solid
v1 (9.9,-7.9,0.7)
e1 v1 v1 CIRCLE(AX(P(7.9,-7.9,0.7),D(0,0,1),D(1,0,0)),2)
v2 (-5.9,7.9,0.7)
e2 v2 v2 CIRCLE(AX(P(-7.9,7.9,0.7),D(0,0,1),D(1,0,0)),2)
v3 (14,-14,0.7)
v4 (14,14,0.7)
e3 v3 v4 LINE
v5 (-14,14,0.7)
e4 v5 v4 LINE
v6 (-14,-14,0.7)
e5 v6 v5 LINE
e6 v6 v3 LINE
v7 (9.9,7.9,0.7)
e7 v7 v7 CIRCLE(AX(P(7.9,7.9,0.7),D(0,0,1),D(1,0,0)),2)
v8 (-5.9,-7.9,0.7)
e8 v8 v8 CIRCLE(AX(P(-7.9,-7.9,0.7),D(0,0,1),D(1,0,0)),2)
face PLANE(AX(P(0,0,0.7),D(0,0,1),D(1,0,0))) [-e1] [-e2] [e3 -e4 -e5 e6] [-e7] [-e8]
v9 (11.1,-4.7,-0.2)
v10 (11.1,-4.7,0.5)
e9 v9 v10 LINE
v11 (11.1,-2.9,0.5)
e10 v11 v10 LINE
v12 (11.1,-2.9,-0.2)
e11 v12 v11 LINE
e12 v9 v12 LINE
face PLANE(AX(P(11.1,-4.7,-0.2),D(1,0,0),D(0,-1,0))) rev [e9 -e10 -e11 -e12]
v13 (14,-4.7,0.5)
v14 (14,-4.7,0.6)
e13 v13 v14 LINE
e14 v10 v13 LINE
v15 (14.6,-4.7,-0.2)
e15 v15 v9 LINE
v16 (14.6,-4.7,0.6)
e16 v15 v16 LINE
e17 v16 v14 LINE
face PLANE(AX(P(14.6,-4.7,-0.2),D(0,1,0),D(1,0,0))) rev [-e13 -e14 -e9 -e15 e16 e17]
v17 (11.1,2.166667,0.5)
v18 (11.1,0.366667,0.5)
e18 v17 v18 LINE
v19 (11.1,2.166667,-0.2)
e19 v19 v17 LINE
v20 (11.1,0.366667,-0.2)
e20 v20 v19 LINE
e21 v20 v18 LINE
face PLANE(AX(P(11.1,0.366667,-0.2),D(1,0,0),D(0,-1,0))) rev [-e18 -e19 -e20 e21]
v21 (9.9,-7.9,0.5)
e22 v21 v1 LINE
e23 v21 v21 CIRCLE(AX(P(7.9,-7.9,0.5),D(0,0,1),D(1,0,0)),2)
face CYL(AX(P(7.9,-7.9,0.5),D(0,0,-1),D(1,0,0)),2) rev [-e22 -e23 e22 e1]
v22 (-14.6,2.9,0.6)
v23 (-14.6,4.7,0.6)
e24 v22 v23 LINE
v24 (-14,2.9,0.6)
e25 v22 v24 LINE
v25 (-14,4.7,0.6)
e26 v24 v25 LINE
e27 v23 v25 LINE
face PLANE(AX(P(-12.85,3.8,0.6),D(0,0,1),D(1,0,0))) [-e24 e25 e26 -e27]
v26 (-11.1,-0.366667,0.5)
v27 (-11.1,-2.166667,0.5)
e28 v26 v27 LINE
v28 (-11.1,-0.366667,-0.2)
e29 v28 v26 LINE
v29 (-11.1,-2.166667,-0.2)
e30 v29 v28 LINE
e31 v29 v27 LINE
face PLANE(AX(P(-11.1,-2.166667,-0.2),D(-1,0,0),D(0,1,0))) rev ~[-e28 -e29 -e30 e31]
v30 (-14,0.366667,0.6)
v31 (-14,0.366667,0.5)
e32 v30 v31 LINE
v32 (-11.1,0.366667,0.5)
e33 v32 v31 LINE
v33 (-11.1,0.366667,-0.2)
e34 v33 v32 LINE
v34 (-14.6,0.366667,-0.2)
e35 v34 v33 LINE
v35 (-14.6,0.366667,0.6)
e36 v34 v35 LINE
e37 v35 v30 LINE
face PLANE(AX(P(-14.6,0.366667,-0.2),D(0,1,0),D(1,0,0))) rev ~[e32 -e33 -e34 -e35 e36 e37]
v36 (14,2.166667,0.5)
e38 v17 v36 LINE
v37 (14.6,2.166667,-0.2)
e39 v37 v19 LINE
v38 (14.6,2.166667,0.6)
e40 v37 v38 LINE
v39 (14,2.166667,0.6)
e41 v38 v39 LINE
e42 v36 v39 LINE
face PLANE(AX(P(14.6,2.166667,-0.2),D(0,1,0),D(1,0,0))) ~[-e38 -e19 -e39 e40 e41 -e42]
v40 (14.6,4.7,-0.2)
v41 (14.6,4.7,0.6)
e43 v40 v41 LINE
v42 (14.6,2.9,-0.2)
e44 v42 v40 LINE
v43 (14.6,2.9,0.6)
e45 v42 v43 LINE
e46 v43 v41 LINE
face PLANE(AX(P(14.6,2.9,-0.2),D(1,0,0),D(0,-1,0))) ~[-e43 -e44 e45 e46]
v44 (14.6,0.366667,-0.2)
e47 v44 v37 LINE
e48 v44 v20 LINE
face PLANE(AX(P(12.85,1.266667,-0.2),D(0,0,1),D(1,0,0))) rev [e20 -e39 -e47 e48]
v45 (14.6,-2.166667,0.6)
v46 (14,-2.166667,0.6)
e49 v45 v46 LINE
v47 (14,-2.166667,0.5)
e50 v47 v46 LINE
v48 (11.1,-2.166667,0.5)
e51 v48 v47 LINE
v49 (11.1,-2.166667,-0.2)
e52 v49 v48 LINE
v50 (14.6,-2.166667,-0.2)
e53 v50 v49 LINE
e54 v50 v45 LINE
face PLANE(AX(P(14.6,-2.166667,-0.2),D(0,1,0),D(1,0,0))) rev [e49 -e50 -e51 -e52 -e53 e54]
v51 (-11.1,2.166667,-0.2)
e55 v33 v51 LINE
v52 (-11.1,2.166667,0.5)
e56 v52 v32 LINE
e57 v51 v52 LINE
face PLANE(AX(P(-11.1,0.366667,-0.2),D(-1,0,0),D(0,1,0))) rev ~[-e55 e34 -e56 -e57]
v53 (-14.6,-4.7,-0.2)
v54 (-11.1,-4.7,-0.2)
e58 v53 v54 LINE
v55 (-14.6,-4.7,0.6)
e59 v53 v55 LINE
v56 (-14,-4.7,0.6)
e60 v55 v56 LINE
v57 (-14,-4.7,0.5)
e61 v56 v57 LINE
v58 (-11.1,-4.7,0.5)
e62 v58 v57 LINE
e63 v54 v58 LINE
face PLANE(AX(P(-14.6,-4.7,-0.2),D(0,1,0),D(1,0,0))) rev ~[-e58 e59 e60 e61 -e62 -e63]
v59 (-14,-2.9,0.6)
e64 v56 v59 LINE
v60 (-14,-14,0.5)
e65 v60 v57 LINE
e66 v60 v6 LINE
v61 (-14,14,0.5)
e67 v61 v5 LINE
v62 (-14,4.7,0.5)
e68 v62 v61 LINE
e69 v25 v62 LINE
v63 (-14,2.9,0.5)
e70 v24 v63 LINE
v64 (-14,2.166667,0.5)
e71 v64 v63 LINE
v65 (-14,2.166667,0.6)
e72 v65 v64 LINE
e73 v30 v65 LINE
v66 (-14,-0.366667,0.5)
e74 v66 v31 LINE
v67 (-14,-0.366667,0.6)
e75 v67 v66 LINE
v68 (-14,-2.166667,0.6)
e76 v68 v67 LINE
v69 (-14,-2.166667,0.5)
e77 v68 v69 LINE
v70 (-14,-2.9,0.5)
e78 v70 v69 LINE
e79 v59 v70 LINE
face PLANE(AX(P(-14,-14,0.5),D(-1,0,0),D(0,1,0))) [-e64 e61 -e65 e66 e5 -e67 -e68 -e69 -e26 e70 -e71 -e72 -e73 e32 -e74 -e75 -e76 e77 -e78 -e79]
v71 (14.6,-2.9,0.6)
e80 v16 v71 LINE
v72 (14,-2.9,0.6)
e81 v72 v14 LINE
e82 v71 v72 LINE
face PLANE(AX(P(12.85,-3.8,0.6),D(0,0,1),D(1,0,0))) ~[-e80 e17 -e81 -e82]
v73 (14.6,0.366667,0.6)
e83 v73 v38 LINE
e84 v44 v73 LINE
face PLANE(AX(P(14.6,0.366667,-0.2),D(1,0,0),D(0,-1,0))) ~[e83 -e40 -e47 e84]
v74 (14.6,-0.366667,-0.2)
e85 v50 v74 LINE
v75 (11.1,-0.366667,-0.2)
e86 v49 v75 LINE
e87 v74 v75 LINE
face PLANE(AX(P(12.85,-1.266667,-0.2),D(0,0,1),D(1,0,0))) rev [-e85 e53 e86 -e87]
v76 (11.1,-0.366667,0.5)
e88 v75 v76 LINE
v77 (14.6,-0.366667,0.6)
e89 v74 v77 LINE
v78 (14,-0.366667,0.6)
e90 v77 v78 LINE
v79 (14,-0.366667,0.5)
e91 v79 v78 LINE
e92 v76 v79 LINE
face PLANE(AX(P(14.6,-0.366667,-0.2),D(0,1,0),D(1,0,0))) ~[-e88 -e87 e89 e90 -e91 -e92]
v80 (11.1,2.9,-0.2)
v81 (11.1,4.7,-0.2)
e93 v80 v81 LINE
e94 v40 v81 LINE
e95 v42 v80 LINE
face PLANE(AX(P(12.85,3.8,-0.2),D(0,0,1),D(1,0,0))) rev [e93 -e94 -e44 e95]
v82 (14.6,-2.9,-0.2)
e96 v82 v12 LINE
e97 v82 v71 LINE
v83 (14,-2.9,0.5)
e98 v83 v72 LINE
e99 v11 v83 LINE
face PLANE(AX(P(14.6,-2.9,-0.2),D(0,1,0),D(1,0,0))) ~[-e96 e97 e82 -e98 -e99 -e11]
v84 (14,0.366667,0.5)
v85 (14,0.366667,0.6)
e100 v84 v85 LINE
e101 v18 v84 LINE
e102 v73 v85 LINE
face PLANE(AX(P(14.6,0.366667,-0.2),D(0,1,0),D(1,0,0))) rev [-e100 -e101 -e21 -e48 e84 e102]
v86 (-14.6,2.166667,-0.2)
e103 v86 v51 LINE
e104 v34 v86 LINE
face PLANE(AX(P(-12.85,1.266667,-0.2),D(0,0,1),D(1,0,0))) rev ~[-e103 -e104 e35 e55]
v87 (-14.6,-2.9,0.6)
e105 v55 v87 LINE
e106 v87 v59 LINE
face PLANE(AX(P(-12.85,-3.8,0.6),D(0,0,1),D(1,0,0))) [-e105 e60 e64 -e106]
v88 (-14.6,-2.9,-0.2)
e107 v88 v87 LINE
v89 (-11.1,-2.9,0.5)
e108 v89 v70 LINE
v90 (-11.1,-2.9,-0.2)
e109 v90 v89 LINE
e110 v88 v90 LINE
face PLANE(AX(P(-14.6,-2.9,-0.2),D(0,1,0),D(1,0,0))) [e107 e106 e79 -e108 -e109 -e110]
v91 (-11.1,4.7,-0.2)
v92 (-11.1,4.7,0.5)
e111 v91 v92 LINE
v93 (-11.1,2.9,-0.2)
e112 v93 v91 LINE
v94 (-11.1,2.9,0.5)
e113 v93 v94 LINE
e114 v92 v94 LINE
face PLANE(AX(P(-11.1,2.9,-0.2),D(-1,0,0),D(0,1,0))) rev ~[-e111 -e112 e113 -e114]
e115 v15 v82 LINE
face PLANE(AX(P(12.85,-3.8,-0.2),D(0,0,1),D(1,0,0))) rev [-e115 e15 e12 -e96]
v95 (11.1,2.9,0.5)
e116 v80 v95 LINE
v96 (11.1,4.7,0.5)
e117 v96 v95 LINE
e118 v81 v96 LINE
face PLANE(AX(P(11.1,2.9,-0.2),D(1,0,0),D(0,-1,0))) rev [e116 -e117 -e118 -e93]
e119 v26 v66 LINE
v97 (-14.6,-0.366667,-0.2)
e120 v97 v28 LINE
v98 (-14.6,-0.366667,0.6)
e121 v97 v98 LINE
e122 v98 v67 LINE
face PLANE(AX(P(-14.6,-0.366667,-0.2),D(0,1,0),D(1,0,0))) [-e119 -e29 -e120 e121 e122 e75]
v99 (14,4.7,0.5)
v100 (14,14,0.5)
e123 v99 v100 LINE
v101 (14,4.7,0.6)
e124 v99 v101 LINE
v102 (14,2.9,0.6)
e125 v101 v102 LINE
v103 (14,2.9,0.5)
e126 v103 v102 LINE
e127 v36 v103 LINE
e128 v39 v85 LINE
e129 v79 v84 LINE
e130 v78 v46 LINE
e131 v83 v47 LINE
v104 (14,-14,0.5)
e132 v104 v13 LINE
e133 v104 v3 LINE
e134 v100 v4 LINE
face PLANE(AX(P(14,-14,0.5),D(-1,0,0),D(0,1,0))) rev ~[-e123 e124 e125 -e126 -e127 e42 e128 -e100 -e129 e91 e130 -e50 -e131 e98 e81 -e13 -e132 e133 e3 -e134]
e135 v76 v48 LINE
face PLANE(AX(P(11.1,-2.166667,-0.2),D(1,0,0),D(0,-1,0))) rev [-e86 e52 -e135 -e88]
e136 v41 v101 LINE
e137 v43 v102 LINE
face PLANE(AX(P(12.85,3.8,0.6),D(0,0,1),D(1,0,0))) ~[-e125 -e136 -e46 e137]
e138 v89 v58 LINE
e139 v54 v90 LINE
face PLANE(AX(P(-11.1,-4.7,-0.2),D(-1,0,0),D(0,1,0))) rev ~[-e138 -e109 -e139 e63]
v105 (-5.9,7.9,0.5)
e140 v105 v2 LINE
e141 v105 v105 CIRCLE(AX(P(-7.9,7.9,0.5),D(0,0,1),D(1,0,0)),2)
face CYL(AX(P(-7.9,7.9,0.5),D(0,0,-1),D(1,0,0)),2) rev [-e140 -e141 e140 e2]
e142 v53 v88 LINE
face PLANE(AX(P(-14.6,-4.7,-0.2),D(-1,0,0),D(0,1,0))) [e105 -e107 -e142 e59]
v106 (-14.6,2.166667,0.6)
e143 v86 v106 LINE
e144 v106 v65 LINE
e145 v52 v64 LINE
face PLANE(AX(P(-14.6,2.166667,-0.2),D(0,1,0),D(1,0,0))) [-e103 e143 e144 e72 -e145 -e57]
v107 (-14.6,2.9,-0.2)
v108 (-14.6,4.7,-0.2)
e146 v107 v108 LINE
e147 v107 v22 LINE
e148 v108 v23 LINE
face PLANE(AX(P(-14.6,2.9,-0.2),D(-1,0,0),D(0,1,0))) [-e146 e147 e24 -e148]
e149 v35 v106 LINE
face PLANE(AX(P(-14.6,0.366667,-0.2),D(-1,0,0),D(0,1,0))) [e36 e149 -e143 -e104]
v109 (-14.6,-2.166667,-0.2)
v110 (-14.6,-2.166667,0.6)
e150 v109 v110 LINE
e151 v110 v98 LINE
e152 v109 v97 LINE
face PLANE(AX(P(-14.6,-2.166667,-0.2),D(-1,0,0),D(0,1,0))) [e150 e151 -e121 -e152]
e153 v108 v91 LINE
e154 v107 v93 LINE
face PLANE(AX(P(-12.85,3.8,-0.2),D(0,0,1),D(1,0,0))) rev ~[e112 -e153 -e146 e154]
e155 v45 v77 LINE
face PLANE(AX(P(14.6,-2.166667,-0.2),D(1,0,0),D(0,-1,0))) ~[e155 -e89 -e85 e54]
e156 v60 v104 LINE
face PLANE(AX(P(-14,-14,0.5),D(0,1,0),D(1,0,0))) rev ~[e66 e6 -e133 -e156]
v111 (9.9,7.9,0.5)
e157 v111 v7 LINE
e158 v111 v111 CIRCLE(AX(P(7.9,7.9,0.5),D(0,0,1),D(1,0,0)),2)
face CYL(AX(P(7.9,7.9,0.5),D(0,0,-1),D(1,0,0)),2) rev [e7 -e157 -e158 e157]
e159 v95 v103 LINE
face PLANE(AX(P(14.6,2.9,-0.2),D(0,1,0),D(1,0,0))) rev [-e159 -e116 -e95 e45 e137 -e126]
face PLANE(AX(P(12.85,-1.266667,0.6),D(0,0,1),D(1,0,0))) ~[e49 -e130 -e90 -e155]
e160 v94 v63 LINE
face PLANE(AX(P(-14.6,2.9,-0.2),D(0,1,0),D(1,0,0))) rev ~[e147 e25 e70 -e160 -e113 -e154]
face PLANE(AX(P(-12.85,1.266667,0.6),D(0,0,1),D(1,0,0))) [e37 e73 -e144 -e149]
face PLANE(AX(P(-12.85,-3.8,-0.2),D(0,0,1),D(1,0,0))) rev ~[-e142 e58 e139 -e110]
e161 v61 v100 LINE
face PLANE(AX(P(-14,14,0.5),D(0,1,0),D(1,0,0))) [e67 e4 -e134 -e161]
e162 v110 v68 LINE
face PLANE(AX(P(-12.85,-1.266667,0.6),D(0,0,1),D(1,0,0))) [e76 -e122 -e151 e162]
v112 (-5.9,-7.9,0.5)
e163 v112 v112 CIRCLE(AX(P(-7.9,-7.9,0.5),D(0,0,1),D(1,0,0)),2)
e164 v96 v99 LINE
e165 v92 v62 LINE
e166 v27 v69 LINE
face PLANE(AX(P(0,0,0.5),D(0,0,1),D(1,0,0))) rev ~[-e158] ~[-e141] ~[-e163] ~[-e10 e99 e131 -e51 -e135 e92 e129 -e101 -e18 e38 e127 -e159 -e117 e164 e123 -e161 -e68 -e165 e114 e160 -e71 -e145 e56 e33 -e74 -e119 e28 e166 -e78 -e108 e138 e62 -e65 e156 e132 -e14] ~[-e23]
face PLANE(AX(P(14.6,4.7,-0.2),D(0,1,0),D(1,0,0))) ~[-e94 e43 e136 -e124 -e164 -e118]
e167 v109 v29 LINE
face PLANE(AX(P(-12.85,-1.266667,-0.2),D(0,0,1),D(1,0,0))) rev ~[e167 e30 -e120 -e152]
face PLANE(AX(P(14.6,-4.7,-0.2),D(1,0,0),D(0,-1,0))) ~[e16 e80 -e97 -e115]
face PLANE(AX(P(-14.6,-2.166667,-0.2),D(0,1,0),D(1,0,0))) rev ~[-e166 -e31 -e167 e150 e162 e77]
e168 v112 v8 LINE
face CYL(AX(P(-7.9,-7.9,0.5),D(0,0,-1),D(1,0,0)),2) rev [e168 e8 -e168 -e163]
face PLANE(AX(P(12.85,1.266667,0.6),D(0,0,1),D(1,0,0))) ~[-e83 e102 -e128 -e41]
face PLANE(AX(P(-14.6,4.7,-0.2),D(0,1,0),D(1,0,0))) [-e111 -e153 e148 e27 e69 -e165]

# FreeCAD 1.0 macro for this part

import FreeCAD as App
import Part
import Sketcher

doc = App.newDocument("Part")
body = doc.addObject("PartDesign::Body", "Body")

sketch1 = body.newObject("Sketcher::SketchObject", "Sketch")
sketch1.AttachmentSupport = (doc.getObject("XY_Plane"), [""])
sketch1.MapMode = "FlatFace"
sketch1.AttachmentOffset = App.Placement(App.Vector(0, 0, 0.5), App.Rotation())
sketch1.addGeometry([
    Part.LineSegment(App.Vector(-14, 14, 0), App.Vector(-14, -14, 0)),
    Part.LineSegment(App.Vector(-14, -14, 0), App.Vector(14, -14, 0)),
    Part.LineSegment(App.Vector(14, -14, 0), App.Vector(14, 14, 0)),
    Part.LineSegment(App.Vector(14, 14, 0), App.Vector(-14, 14, 0)),
    Part.Circle(App.Vector(-7.9, -7.9, 0), App.Vector(0, 0, 1), 2),
    Part.Circle(App.Vector(7.9, -7.9, 0), App.Vector(0, 0, 1), 2),
    Part.Circle(App.Vector(-7.9, 7.9, 0), App.Vector(0, 0, 1), 2),
    Part.Circle(App.Vector(7.9, 7.9, 0), App.Vector(0, 0, 1), 2),
], False)
sketch1.addConstraint([
    Sketcher.Constraint("Coincident", 0, 2, 1, 1),
    Sketcher.Constraint("Coincident", 1, 2, 2, 1),
    Sketcher.Constraint("Coincident", 2, 2, 3, 1),
    Sketcher.Constraint("Coincident", 3, 2, 0, 1),
    Sketcher.Constraint("Vertical", 0),
    Sketcher.Constraint("Horizontal", 1),
    Sketcher.Constraint("Vertical", 2),
    Sketcher.Constraint("Horizontal", 3),
    Sketcher.Constraint("Equal", 4, 5),
    Sketcher.Constraint("Equal", 5, 6),
    Sketcher.Constraint("Equal", 6, 7),
    Sketcher.Constraint("Symmetric", 5, 3, 6, 3, -1, 1),
    Sketcher.Constraint("Symmetric", 4, 3, 7, 3, -1, 1),
    Sketcher.Constraint("Symmetric", 0, 2, 2, 2, -1, 1),
    Sketcher.Constraint("Symmetric", 4, 3, 5, 3, -2),
    Sketcher.Constraint("Equal", 3, 0),
    Sketcher.Constraint("Diameter", 4, 4.0),
    Sketcher.Constraint("DistanceX", 1, 1, 1, 2, 28.0),
    Sketcher.Constraint("DistanceX", 4, 3, -1, 1, 7.9),
    Sketcher.Constraint("DistanceY", 4, 3, -1, 1, 7.9),
])
pad1 = body.newObject("PartDesign::Pad", "Pad")
pad1.Profile = sketch1
pad1.Length = 0.2

sketch2 = body.newObject("Sketcher::SketchObject", "Sketch001")
sketch2.AttachmentSupport = (doc.getObject("XY_Plane"), [""])
sketch2.MapMode = "FlatFace"
sketch2.AttachmentOffset = App.Placement(App.Vector(0, 0, -0.2), App.Rotation())
sketch2.addGeometry([
    Part.LineSegment(App.Vector(-14.6, -2.9, 0), App.Vector(-14.6, -4.7, 0)),
    Part.LineSegment(App.Vector(-14.6, -4.7, 0), App.Vector(-11.1, -4.7, 0)),
    Part.LineSegment(App.Vector(-11.1, -4.7, 0), App.Vector(-11.1, -2.9, 0)),
    Part.LineSegment(App.Vector(-11.1, -2.9, 0), App.Vector(-14.6, -2.9, 0)),
], False)
sketch2.addConstraint([
    Sketcher.Constraint("Coincident", 0, 2, 1, 1),
    Sketcher.Constraint("Coincident", 1, 2, 2, 1),
    Sketcher.Constraint("Coincident", 2, 2, 3, 1),
    Sketcher.Constraint("Coincident", 3, 2, 0, 1),
    Sketcher.Constraint("Vertical", 0),
    Sketcher.Constraint("Horizontal", 1),
    Sketcher.Constraint("Vertical", 2),
    Sketcher.Constraint("Horizontal", 3),
    Sketcher.Constraint("DistanceX", 1, 1, 1, 2, 3.5),
    Sketcher.Constraint("DistanceY", 0, 2, 0, 1, 1.8),
    Sketcher.Constraint("DistanceX", 0, 2, -1, 1, 14.6),
    Sketcher.Constraint("DistanceY", 0, 2, -1, 1, 4.7),
])
pad2 = body.newObject("PartDesign::Pad", "Pad001")
pad2.Profile = sketch2
pad2.Length = 0.8

sketch3 = body.newObject("Sketcher::SketchObject", "Sketch002")
sketch3.AttachmentSupport = (doc.getObject("XY_Plane"), [""])
sketch3.MapMode = "FlatFace"
sketch3.AttachmentOffset = App.Placement(App.Vector(0, 0, -0.2), App.Rotation())
sketch3.addGeometry([
    Part.LineSegment(App.Vector(-14.6, -0.366667, 0), App.Vector(-14.6, -2.166667, 0)),
    Part.LineSegment(App.Vector(-14.6, -2.166667, 0), App.Vector(-11.1, -2.166667, 0)),
    Part.LineSegment(App.Vector(-11.1, -2.166667, 0), App.Vector(-11.1, -0.366667, 0)),
    Part.LineSegment(App.Vector(-11.1, -0.366667, 0), App.Vector(-14.6, -0.366667, 0)),
], False)
sketch3.addConstraint([
    Sketcher.Constraint("Coincident", 0, 2, 1, 1),
    Sketcher.Constraint("Coincident", 1, 2, 2, 1),
    Sketcher.Constraint("Coincident", 2, 2, 3, 1),
    Sketcher.Constraint("Coincident", 3, 2, 0, 1),
    Sketcher.Constraint("Vertical", 0),
    Sketcher.Constraint("Horizontal", 1),
    Sketcher.Constraint("Vertical", 2),
    Sketcher.Constraint("Horizontal", 3),
    Sketcher.Constraint("DistanceX", 1, 1, 1, 2, 3.5),
    Sketcher.Constraint("DistanceY", 0, 2, 0, 1, 1.8),
    Sketcher.Constraint("DistanceX", 0, 2, -1, 1, 14.6),
    Sketcher.Constraint("DistanceY", 0, 2, -1, 1, 2.166667),
])
pad3 = body.newObject("PartDesign::Pad", "Pad002")
pad3.Profile = sketch3
pad3.Length = 0.8

sketch4 = body.newObject("Sketcher::SketchObject", "Sketch003")
sketch4.AttachmentSupport = (doc.getObject("XY_Plane"), [""])
sketch4.MapMode = "FlatFace"
sketch4.AttachmentOffset = App.Placement(App.Vector(0, 0, -0.2), App.Rotation())
sketch4.addGeometry([
    Part.LineSegment(App.Vector(-14.6, 2.166667, 0), App.Vector(-14.6, 0.366667, 0)),
    Part.LineSegment(App.Vector(-14.6, 0.366667, 0), App.Vector(-11.1, 0.366667, 0)),
    Part.LineSegment(App.Vector(-11.1, 0.366667, 0), App.Vector(-11.1, 2.166667, 0)),
    Part.LineSegment(App.Vector(-11.1, 2.166667, 0), App.Vector(-14.6, 2.166667, 0)),
], False)
sketch4.addConstraint([
    Sketcher.Constraint("Coincident", 0, 2, 1, 1),
    Sketcher.Constraint("Coincident", 1, 2, 2, 1),
    Sketcher.Constraint("Coincident", 2, 2, 3, 1),
    Sketcher.Constraint("Coincident", 3, 2, 0, 1),
    Sketcher.Constraint("Vertical", 0),
    Sketcher.Constraint("Horizontal", 1),
    Sketcher.Constraint("Vertical", 2),
    Sketcher.Constraint("Horizontal", 3),
    Sketcher.Constraint("DistanceX", 1, 1, 1, 2, 3.5),
    Sketcher.Constraint("DistanceY", 0, 2, 0, 1, 1.8),
    Sketcher.Constraint("DistanceX", 0, 2, -1, 1, 14.6),
    Sketcher.Constraint("DistanceY", -1, 1, 0, 2, 0.366667),
])
pad4 = body.newObject("PartDesign::Pad", "Pad003")
pad4.Profile = sketch4
pad4.Length = 0.8

sketch5 = body.newObject("Sketcher::SketchObject", "Sketch004")
sketch5.AttachmentSupport = (doc.getObject("XY_Plane"), [""])
sketch5.MapMode = "FlatFace"
sketch5.AttachmentOffset = App.Placement(App.Vector(0, 0, -0.2), App.Rotation())
sketch5.addGeometry([
    Part.LineSegment(App.Vector(-14.6, 4.7, 0), App.Vector(-14.6, 2.9, 0)),
    Part.LineSegment(App.Vector(-14.6, 2.9, 0), App.Vector(-11.1, 2.9, 0)),
    Part.LineSegment(App.Vector(-11.1, 2.9, 0), App.Vector(-11.1, 4.7, 0)),
    Part.LineSegment(App.Vector(-11.1, 4.7, 0), App.Vector(-14.6, 4.7, 0)),
], False)
sketch5.addConstraint([
    Sketcher.Constraint("Coincident", 0, 2, 1, 1),
    Sketcher.Constraint("Coincident", 1, 2, 2, 1),
    Sketcher.Constraint("Coincident", 2, 2, 3, 1),
    Sketcher.Constraint("Coincident", 3, 2, 0, 1),
    Sketcher.Constraint("Vertical", 0),
    Sketcher.Constraint("Horizontal", 1),
    Sketcher.Constraint("Vertical", 2),
    Sketcher.Constraint("Horizontal", 3),
    Sketcher.Constraint("DistanceX", 1, 1, 1, 2, 3.5),
    Sketcher.Constraint("DistanceY", 0, 2, 0, 1, 1.8),
    Sketcher.Constraint("DistanceX", 0, 2, -1, 1, 14.6),
    Sketcher.Constraint("DistanceY", -1, 1, 0, 2, 2.9),
])
pad5 = body.newObject("PartDesign::Pad", "Pad004")
pad5.Profile = sketch5
pad5.Length = 0.8
doc.recompute()

mirrored = body.newObject("PartDesign::Mirrored", "Mirrored")
mirrored.Originals = [pad2, pad3, pad4, pad5]
mirrored.MirrorPlane = (doc.getObject("YZ_Plane"), [""])
body.Tip = mirrored

doc.recompute()
